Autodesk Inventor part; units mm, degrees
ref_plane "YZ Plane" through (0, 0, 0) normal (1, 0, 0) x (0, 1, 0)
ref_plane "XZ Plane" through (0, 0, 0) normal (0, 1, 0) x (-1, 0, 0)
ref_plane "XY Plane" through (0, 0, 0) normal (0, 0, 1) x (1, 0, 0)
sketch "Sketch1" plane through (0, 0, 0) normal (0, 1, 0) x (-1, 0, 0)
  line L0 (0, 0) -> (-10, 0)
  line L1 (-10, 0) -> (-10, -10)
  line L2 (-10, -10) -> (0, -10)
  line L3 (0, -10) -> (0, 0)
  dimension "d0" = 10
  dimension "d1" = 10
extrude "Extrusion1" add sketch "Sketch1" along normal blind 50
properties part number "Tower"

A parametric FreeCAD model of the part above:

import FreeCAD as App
import Part
import Sketcher

V = App.Vector

doc = App.newDocument("Part")
params = doc.addObject("Spreadsheet::Sheet", "Params")
for row, (alias, value) in enumerate([
    ("sketch1_width", "10 mm"),
    ("pad1_length", "50 mm"),
], start=1):
    params.set(f"A{row}", alias)
    params.set(f"B{row}", "=" + value)
    params.setAlias(f"B{row}", alias)

body = doc.addObject("PartDesign::Body", "Body")

sketch1 = body.newObject("Sketcher::SketchObject", "Sketch")
sketch1.AttachmentSupport = (doc.getObject("XZ_Plane"), [""])
sketch1.MapMode = "FlatFace"
sketch1.addGeometry(Part.LineSegment(V(0, -10, 0), V(0, 0, 0)), False)
sketch1.addGeometry(Part.LineSegment(V(0, 0, 0), V(10, 0, 0)), False)
sketch1.addGeometry(Part.LineSegment(V(10, 0, 0), V(10, -10, 0)), False)
sketch1.addGeometry(Part.LineSegment(V(10, -10, 0), V(0, -10, 0)), False)
sketch1.addConstraint(Sketcher.Constraint("Coincident", 0, 2, 1, 1))
sketch1.addConstraint(Sketcher.Constraint("Coincident", 1, 2, 2, 1))
sketch1.addConstraint(Sketcher.Constraint("Coincident", 2, 2, 3, 1))
sketch1.addConstraint(Sketcher.Constraint("Coincident", 3, 2, 0, 1))
sketch1.addConstraint(Sketcher.Constraint("Vertical", 0))
sketch1.addConstraint(Sketcher.Constraint("Horizontal", 1))
sketch1.addConstraint(Sketcher.Constraint("Vertical", 2))
sketch1.addConstraint(Sketcher.Constraint("Horizontal", 3))
sketch1.addConstraint(Sketcher.Constraint("Coincident", 0, 2, -1, 1))
sketch1.addConstraint(Sketcher.Constraint("Equal", 3, 0))
sketch1.addConstraint(Sketcher.Constraint("DistanceX", 1, 1, 1, 2, 10.0))
sketch1.setExpression("Constraints[10]", "Params.sketch1_width")
pad1 = body.newObject("PartDesign::Pad", "Pad")
pad1.Profile = sketch1
pad1.setExpression("Length", "Params.pad1_length")
pad1.Reversed = True

doc.recompute()
